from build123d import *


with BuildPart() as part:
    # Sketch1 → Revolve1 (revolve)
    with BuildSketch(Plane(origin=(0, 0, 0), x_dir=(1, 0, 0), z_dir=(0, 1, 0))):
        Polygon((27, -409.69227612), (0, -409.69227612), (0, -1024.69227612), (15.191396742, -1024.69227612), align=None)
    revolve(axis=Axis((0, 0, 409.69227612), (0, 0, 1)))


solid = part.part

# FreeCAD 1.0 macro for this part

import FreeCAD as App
import Part
import Sketcher
from FreeCAD import Vector
Q = App.Units.Quantity

doc = App.newDocument("Part")
body = doc.addObject("PartDesign::Body", "Body")

sketch1 = doc.addObject("Sketcher::SketchObject", "Sketch")
body.addObject(sketch1)
sketch1.AttachmentSupport = (doc.XZ_Plane, [""])
sketch1.MapMode = "FlatFace"
sketch1.addGeometry(Part.LineSegment(Vector(27, 410, 0), Vector(0, 410, 0)), False)
sketch1.addGeometry(Part.LineSegment(Vector(0, 410, 0), Vector(0, 1025, 0)), False)
sketch1.addGeometry(Part.LineSegment(Vector(0, 1025, 0), Vector(15, 1025, 0)), False)
sketch1.addGeometry(Part.LineSegment(Vector(15, 1025, 0), Vector(27, 410, 0)), False)
sketch1.addConstraint(Sketcher.Constraint("Coincident", 0, 2, 1, 1))
sketch1.addConstraint(Sketcher.Constraint("Coincident", 1, 2, 2, 1))
sketch1.addConstraint(Sketcher.Constraint("Coincident", 2, 2, 3, 1))
sketch1.addConstraint(Sketcher.Constraint("Coincident", 3, 2, 0, 1))
sketch1.addConstraint(Sketcher.Constraint("Horizontal", 0))
sketch1.addConstraint(Sketcher.Constraint("Vertical", 1))
sketch1.addConstraint(Sketcher.Constraint("Horizontal", 2))
sketch1.addConstraint(Sketcher.Constraint("PointOnObject", 0, 2, -2))
sketch1.addConstraint(Sketcher.Constraint("DistanceX", 0, 2, 0, 1, 27.0))
sketch1.addConstraint(Sketcher.Constraint("DistanceY", 1, 1, 1, 2, 615.0))
sketch1.addConstraint(Sketcher.Constraint("Angle", 3, Q("-88.9 deg")))
sketch1.addConstraint(Sketcher.Constraint("DistanceY", -1, 1, 0, 2, 409.692276))
revolution = doc.addObject("PartDesign::Revolution", "Revolution")
body.addObject(revolution)
revolution.Profile = sketch1
revolution.ReferenceAxis = (sketch1, ["V_Axis"])
revolution.Angle = 360

doc.recompute()
